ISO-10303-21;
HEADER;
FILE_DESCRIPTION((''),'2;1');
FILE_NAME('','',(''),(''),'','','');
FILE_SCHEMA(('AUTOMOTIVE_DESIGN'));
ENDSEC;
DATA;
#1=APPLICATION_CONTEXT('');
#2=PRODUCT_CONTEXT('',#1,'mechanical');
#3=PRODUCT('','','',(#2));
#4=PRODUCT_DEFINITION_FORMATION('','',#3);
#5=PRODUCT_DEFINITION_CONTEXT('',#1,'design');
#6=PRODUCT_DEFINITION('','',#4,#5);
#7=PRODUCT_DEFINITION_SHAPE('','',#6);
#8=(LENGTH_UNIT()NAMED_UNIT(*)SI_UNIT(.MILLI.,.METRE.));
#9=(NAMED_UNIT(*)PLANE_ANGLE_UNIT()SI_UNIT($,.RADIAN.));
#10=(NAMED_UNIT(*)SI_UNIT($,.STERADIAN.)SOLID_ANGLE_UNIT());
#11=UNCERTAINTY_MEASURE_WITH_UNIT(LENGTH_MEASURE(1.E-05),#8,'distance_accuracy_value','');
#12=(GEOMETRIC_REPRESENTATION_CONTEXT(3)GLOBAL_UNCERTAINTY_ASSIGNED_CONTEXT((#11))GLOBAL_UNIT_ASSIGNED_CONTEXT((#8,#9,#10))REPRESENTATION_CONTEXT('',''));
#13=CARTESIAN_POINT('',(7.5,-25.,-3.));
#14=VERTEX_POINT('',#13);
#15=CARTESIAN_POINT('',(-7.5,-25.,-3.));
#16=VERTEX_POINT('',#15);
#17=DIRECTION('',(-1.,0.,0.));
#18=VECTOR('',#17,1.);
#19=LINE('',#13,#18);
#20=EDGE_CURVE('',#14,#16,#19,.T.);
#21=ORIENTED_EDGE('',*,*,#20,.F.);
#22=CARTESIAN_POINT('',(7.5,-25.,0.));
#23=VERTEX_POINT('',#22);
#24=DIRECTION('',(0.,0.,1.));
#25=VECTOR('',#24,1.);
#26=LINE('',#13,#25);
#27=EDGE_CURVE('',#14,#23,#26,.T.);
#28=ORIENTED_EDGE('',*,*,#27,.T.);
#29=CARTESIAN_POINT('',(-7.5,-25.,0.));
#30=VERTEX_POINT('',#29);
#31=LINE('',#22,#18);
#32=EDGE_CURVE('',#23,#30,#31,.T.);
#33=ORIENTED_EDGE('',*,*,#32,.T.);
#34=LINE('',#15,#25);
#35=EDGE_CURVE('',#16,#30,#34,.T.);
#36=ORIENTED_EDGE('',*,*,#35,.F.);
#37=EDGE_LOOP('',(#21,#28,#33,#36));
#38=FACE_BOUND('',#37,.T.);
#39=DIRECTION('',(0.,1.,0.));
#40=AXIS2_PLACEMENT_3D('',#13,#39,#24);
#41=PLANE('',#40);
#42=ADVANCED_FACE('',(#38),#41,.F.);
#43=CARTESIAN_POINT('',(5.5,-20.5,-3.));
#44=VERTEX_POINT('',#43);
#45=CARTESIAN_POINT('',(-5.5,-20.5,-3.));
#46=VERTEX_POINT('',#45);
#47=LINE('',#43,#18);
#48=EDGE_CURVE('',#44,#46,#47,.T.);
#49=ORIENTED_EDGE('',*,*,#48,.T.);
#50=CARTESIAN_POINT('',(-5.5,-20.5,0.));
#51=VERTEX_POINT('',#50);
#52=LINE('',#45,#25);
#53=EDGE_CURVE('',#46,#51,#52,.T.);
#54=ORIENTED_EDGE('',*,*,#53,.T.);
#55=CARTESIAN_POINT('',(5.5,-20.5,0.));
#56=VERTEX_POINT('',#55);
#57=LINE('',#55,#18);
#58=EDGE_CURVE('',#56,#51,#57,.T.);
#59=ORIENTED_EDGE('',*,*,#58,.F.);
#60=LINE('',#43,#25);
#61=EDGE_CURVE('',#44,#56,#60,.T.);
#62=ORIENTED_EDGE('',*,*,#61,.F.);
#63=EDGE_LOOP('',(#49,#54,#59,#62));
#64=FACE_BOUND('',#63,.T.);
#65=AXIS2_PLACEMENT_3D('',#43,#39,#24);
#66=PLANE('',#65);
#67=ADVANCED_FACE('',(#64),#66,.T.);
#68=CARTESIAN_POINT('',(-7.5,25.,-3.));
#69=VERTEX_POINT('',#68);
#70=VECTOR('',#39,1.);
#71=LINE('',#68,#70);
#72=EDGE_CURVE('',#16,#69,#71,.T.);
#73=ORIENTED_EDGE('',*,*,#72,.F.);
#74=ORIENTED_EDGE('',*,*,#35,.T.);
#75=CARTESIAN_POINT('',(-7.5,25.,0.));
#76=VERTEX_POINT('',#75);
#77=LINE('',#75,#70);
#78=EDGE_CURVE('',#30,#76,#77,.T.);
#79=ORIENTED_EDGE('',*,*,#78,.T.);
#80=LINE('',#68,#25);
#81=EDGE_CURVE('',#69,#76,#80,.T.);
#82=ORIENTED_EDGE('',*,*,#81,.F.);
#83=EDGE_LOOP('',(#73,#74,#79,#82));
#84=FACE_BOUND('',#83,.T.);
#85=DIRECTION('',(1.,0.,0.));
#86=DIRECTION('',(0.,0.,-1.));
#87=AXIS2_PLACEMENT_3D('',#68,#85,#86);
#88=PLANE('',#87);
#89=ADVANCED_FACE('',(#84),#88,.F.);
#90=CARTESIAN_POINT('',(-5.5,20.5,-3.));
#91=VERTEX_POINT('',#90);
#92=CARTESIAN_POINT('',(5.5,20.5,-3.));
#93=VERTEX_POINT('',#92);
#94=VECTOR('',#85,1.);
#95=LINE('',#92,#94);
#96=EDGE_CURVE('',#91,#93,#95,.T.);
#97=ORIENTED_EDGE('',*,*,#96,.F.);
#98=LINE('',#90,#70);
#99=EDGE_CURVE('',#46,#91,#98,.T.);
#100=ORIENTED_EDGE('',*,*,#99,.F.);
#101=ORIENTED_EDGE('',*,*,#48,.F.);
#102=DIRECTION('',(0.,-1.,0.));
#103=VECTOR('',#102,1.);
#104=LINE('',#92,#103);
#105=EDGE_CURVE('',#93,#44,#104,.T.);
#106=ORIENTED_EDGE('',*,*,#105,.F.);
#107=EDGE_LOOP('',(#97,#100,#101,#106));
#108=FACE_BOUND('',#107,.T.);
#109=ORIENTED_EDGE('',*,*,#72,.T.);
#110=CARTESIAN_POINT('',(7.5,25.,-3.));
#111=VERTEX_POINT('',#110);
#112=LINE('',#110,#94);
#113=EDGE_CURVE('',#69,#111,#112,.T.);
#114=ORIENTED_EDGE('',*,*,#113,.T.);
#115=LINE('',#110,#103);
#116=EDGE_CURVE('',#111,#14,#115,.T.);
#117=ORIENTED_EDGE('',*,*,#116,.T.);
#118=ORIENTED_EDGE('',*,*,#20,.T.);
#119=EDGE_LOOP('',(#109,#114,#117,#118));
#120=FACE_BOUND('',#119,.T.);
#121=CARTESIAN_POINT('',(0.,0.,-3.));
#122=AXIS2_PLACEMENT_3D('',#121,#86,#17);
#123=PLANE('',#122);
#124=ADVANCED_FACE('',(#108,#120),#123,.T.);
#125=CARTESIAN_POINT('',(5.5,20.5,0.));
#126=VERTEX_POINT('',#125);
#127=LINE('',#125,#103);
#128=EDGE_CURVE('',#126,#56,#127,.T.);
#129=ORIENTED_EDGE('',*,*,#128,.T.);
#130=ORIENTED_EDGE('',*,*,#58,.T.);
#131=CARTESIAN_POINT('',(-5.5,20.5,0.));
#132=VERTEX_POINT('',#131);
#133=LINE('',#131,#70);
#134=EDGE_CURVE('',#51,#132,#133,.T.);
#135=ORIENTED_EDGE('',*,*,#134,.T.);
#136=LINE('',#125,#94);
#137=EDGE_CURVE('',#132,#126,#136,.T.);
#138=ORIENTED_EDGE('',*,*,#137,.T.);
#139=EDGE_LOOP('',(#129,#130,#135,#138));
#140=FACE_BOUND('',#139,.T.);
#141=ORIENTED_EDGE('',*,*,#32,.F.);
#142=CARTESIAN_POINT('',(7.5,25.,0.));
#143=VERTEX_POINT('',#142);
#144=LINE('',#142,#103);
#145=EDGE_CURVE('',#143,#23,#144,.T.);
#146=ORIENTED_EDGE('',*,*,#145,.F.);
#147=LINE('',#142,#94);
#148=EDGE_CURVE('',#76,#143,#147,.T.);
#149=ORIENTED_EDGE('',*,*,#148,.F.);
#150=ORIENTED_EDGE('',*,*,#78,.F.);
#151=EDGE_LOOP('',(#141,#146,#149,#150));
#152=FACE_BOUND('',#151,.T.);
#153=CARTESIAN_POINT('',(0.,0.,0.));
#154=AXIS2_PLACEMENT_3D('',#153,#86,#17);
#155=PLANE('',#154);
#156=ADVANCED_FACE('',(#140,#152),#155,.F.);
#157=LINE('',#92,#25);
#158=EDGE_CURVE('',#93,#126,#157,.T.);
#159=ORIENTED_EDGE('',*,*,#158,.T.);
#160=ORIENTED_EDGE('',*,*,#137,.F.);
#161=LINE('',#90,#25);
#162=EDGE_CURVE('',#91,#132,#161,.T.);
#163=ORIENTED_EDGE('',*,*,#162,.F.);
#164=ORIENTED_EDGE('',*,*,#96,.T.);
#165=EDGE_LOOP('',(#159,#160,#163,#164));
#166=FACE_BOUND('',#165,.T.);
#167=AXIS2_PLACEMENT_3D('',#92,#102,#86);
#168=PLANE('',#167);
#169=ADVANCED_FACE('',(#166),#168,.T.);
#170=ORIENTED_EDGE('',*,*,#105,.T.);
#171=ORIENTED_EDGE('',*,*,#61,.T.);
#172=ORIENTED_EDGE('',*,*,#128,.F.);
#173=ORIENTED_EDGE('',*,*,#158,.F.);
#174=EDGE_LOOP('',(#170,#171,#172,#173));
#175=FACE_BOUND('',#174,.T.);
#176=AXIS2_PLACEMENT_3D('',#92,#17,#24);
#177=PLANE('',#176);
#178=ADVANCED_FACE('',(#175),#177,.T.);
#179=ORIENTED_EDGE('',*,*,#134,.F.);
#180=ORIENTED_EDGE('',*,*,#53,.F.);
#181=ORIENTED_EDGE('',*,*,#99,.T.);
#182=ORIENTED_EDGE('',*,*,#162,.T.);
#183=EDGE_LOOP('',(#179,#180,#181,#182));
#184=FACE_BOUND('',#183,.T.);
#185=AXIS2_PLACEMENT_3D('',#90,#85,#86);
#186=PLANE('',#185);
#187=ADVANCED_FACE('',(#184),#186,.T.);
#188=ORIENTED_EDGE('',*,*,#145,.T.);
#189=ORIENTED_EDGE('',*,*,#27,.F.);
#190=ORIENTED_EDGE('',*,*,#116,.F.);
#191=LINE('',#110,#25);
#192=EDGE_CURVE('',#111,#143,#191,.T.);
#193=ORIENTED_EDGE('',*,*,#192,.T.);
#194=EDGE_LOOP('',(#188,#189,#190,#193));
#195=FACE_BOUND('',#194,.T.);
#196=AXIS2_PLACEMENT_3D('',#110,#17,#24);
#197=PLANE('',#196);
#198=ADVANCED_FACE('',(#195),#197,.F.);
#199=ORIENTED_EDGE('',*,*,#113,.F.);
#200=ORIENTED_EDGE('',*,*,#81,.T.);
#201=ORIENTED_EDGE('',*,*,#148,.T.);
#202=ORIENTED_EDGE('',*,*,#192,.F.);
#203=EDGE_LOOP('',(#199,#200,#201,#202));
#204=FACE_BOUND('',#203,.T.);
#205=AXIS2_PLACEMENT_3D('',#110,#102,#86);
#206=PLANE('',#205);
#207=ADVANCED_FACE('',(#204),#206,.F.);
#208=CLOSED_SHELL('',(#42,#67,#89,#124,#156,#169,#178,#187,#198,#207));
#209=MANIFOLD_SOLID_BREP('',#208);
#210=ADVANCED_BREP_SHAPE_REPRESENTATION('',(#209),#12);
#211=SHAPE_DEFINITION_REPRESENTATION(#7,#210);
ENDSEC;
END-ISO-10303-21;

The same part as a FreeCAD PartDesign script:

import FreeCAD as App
import Part
import Sketcher
Q = App.Units.Quantity


def add_polygon(sketch, points):
    """Adds a closed chain of lines whose ends are joined by coincident constraints."""
    first, n = sketch.GeometryCount, len(points)
    for a, b in zip(points, points[1:] + points[:1]):
        sketch.addGeometry(Part.LineSegment(App.Vector(*a, 0), App.Vector(*b, 0)), False)
    for i in range(n):
        sketch.addConstraint(Sketcher.Constraint("Coincident", first + i, 2, first + (i + 1) % n, 1))

doc = App.newDocument("Part")
body = doc.addObject("PartDesign::Body", "Body")

sketch1 = body.newObject("Sketcher::SketchObject", "Sketch")
sketch1.AttachmentSupport = (doc.getObject("XY_Plane"), [""])
sketch1.MapMode = "FlatFace"
add_polygon(sketch1, [(7.5, 25), (7.5, -25), (-7.5, -25), (-7.5, 25)])
add_polygon(sketch1, [(-5.5, -20.5), (5.5, -20.5), (5.5, 20.5), (-5.5, 20.5)])
sketch1.addConstraint([
    Sketcher.Constraint("Vertical", 0),
    Sketcher.Constraint("Horizontal", 1),
    Sketcher.Constraint("Vertical", 2),
    Sketcher.Constraint("Horizontal", 3),
    Sketcher.Constraint("Horizontal", 4),
    Sketcher.Constraint("Vertical", 5),
    Sketcher.Constraint("Horizontal", 6),
    Sketcher.Constraint("Vertical", 7),
    Sketcher.Constraint("Symmetric", 0, 2, 2, 2, -1, 1),
    Sketcher.Constraint("Symmetric", 4, 2, 6, 2, -1, 1),
    Sketcher.Constraint("DistanceX", 1, 2, 1, 1, Q("15 mm")),
    Sketcher.Constraint("DistanceX", 4, 1, 4, 2, Q("11 mm")),
    Sketcher.Constraint("DistanceY", 0, 2, 0, 1, Q("50 mm")),
    Sketcher.Constraint("DistanceY", 5, 1, 5, 2, Q("41 mm")),
])
pad1 = body.newObject("PartDesign::Pad", "Pad")
pad1.Profile = sketch1
pad1.Length = 3
pad1.Reversed = True

doc.recompute()
